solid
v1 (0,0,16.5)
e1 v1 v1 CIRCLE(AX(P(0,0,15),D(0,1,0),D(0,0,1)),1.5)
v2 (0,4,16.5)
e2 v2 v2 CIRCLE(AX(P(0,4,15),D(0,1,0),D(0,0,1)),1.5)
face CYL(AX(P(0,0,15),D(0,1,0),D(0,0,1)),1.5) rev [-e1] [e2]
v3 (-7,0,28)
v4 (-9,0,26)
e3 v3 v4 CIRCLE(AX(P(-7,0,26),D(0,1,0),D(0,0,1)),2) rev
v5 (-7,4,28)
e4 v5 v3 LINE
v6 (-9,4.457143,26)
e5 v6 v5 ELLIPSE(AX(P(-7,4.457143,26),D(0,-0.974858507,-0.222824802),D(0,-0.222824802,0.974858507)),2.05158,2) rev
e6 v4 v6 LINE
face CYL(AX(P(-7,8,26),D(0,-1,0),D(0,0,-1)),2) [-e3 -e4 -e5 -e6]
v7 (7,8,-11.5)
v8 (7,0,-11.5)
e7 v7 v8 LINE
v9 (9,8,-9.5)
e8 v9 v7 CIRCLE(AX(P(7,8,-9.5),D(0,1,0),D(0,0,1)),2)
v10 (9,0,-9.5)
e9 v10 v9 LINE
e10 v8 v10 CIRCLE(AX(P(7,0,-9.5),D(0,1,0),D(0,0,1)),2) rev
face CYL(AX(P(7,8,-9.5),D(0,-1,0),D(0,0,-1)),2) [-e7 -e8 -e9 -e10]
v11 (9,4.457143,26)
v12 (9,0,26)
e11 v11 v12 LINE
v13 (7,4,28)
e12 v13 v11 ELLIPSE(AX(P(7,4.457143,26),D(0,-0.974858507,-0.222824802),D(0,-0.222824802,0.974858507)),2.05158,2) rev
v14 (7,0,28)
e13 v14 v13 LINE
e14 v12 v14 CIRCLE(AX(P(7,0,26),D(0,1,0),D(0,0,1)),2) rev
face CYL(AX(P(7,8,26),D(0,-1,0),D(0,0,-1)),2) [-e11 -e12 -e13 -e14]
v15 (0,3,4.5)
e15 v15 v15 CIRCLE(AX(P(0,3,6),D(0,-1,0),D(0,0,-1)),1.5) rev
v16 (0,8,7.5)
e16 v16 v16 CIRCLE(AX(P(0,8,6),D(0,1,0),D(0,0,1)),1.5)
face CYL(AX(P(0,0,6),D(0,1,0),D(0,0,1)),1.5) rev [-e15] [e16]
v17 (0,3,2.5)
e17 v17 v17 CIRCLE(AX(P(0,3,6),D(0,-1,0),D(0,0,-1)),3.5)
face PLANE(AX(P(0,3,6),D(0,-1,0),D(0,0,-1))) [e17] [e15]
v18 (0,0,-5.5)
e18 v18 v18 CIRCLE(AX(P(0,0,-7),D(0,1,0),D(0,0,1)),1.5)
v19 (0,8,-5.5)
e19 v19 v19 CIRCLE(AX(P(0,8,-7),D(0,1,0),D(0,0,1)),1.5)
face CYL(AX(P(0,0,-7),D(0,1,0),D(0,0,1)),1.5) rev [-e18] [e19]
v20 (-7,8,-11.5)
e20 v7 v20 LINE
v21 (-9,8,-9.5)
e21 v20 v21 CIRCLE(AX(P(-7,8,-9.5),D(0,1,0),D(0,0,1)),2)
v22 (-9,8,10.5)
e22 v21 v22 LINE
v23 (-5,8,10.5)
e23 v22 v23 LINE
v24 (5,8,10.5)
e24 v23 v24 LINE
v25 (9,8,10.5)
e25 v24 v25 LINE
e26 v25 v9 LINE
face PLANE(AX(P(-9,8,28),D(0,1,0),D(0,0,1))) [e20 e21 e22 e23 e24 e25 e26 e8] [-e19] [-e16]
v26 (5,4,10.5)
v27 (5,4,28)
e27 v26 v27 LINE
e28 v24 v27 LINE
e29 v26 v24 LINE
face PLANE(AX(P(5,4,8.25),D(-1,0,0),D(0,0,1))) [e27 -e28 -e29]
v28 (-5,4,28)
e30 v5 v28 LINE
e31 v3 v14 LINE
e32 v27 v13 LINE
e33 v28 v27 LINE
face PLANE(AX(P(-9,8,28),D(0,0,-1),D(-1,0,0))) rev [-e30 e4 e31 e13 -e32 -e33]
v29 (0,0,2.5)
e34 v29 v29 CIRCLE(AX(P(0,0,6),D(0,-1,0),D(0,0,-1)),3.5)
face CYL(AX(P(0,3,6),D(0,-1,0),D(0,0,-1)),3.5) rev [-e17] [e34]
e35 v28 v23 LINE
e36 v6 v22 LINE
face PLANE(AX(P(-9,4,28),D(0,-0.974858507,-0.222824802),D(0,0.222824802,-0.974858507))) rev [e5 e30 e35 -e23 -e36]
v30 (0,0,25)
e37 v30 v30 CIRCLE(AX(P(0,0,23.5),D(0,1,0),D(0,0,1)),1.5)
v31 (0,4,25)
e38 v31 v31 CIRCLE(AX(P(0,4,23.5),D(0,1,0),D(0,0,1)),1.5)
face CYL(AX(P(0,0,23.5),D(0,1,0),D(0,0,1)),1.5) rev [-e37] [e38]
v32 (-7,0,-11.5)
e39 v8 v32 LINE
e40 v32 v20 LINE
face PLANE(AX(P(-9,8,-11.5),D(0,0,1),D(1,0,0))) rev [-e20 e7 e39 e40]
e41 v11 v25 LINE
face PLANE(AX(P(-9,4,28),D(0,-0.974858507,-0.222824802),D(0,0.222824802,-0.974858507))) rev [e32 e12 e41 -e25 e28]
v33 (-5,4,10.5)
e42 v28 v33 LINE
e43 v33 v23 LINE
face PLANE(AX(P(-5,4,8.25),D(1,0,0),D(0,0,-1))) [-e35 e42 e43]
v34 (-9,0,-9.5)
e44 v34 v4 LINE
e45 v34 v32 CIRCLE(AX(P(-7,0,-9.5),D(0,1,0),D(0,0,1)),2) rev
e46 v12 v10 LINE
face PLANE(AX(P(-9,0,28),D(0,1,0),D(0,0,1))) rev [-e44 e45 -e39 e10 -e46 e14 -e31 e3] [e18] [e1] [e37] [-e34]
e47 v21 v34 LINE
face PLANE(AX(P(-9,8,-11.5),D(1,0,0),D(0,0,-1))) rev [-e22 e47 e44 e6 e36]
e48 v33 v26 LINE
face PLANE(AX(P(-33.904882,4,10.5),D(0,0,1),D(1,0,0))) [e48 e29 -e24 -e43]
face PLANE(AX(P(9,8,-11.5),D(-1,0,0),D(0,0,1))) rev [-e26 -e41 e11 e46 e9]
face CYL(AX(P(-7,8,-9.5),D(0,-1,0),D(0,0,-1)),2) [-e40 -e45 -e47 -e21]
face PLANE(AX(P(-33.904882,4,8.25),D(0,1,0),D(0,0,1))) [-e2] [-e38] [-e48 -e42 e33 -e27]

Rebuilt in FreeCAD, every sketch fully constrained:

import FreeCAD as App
import Part
import Sketcher
from FreeCAD import Vector


def edges_at(feature, points):
    """Names of the edges that pass closest to the given points."""
    edges = feature.Shape.Edges
    near = lambda p: min(range(len(edges)), key=lambda i: edges[i].distToShape(Part.Vertex(*p))[0])
    return sorted({f"Edge{near(p) + 1}" for p in points})

doc = App.newDocument("Part")
params = doc.addObject("Spreadsheet::Sheet", "Params")
for row, (alias, value) in enumerate([
    ("sketch1_width", "18 mm"),
    ("sketch1_height", "39.5 mm"),
    ("pad1_length", "8 mm"),
    ("sketch2_width", "10 mm"),
    ("sketch2_height", "17.5 mm"),
    ("pocket1_length", "4 mm"),
    ("sketch3_width", "4 mm"),
    ("sketch3_height", "17.5 mm"),
    ("sketch4_diameter", "3 mm"),
    ("fillet_radius", "2 mm"),
    ("sketch5_diameter", "3 mm"),
    ("sketch6_diameter", "7 mm"),
    ("pocket5_length", "3 mm"),
    ("fillet2_radius", "2 mm"),
], start=1):
    params.set(f"A{row}", alias)
    params.set(f"B{row}", "=" + value)
    params.setAlias(f"B{row}", alias)

body = doc.addObject("PartDesign::Body", "Body")

# Sketch on XZ plane
sketch1 = body.newObject("Sketcher::SketchObject", "Sketch")
sketch1.AttachmentSupport = (doc.getObject("XZ_Plane"), [""])
sketch1.MapMode = "FlatFace"
sketch1.addGeometry(Part.LineSegment(Vector(-9, -12, 0), Vector(-9, 28, 0)), False)
sketch1.addGeometry(Part.LineSegment(Vector(-9, 28, 0), Vector(9, 28, 0)), False)
sketch1.addGeometry(Part.LineSegment(Vector(9, 28, 0), Vector(9, -12, 0)), False)
sketch1.addGeometry(Part.LineSegment(Vector(9, -12, 0), Vector(-9, -12, 0)), False)
sketch1.addConstraint(Sketcher.Constraint("Coincident", 0, 2, 1, 1))
sketch1.addConstraint(Sketcher.Constraint("Coincident", 1, 2, 2, 1))
sketch1.addConstraint(Sketcher.Constraint("Coincident", 2, 2, 3, 1))
sketch1.addConstraint(Sketcher.Constraint("Coincident", 3, 2, 0, 1))
sketch1.addConstraint(Sketcher.Constraint("Vertical", 0))
sketch1.addConstraint(Sketcher.Constraint("Horizontal", 1))
sketch1.addConstraint(Sketcher.Constraint("Vertical", 2))
sketch1.addConstraint(Sketcher.Constraint("Horizontal", 3))
sketch1.addConstraint(Sketcher.Constraint("DistanceX", 1, 1, 1, 2, 18.0))
sketch1.addConstraint(Sketcher.Constraint("DistanceY", 0, 1, 0, 2, 39.5))
sketch1.addConstraint(Sketcher.Constraint("DistanceX", 0, 2, -1, 1, 9.0))
sketch1.addConstraint(Sketcher.Constraint("DistanceY", -1, 1, 0, 2, 28.0))
sketch1.setExpression("Constraints[8]", "Params.sketch1_width")
sketch1.setExpression("Constraints[9]", "Params.sketch1_height")
pad1 = body.newObject("PartDesign::Pad", "Pad")
pad1.Profile = sketch1
pad1.setExpression("Length", "Params.pad1_length")
pad1.Reversed = True

# Sketch on XZ plane
sketch2 = body.newObject("Sketcher::SketchObject", "Sketch001")
sketch2.AttachmentSupport = (doc.getObject("XZ_Plane"), [""])
sketch2.MapMode = "FlatFace"
sketch2.AttachmentOffset = App.Placement(Vector(0, 0, -8), App.Rotation())
sketch2.addGeometry(Part.LineSegment(Vector(5, 28, 0), Vector(5, 10, 0)), False)
sketch2.addGeometry(Part.LineSegment(Vector(5, 10, 0), Vector(-5, 10, 0)), False)
sketch2.addGeometry(Part.LineSegment(Vector(-5, 10, 0), Vector(-5, 28, 0)), False)
sketch2.addGeometry(Part.LineSegment(Vector(-5, 28, 0), Vector(5, 28, 0)), False)
sketch2.addConstraint(Sketcher.Constraint("Coincident", 0, 2, 1, 1))
sketch2.addConstraint(Sketcher.Constraint("Coincident", 1, 2, 2, 1))
sketch2.addConstraint(Sketcher.Constraint("Coincident", 2, 2, 3, 1))
sketch2.addConstraint(Sketcher.Constraint("Coincident", 3, 2, 0, 1))
sketch2.addConstraint(Sketcher.Constraint("Vertical", 0))
sketch2.addConstraint(Sketcher.Constraint("Horizontal", 1))
sketch2.addConstraint(Sketcher.Constraint("Vertical", 2))
sketch2.addConstraint(Sketcher.Constraint("Horizontal", 3))
sketch2.addConstraint(Sketcher.Constraint("DistanceX", 1, 2, 1, 1, 10.0))
sketch2.addConstraint(Sketcher.Constraint("DistanceY", 0, 2, 0, 1, 17.5))
sketch2.addConstraint(Sketcher.Constraint("DistanceX", -1, 1, 0, 2, 5.0))
sketch2.addConstraint(Sketcher.Constraint("DistanceY", -1, 1, 2, 2, 28.0))
sketch2.setExpression("Constraints[8]", "Params.sketch2_width")
sketch2.setExpression("Constraints[9]", "Params.sketch2_height")
pocket1 = body.newObject("PartDesign::Pocket", "Pocket")
pocket1.Profile = sketch2
pocket1.setExpression("Length", "Params.pocket1_length")
pocket1.Reversed = True

# Sketch on YZ plane
sketch3 = body.newObject("Sketcher::SketchObject", "Sketch002")
sketch3.AttachmentSupport = (doc.getObject("YZ_Plane"), [""])
sketch3.MapMode = "FlatFace"
sketch3.AttachmentOffset = App.Placement(Vector(0, 0, 9), App.Rotation())
sketch3.addGeometry(Part.LineSegment(Vector(4, 28, 0), Vector(8, 10.5, 0)), False)
sketch3.addGeometry(Part.LineSegment(Vector(8, 10.5, 0), Vector(8, 28, 0)), False)
sketch3.addGeometry(Part.LineSegment(Vector(8, 28, 0), Vector(4, 28, 0)), False)
sketch3.addConstraint(Sketcher.Constraint("Coincident", 0, 2, 1, 1))
sketch3.addConstraint(Sketcher.Constraint("Coincident", 1, 2, 2, 1))
sketch3.addConstraint(Sketcher.Constraint("Coincident", 2, 2, 0, 1))
sketch3.addConstraint(Sketcher.Constraint("Vertical", 1))
sketch3.addConstraint(Sketcher.Constraint("Horizontal", 2))
sketch3.addConstraint(Sketcher.Constraint("DistanceX", 2, 2, 2, 1, 4.0))
sketch3.addConstraint(Sketcher.Constraint("DistanceY", 1, 1, 1, 2, 17.5))
sketch3.addConstraint(Sketcher.Constraint("DistanceX", -1, 1, 0, 2, 8.0))
sketch3.addConstraint(Sketcher.Constraint("DistanceY", -1, 1, 1, 2, 28.0))
sketch3.setExpression("Constraints[5]", "Params.sketch3_width")
sketch3.setExpression("Constraints[6]", "Params.sketch3_height")
pocket2 = body.newObject("PartDesign::Pocket", "Pocket001")
pocket2.Profile = sketch3
pocket2.Type = "ThroughAll"

# Sketch on XZ plane
sketch4 = body.newObject("Sketcher::SketchObject", "Sketch003")
sketch4.AttachmentSupport = (doc.getObject("XZ_Plane"), [""])
sketch4.MapMode = "FlatFace"
sketch4.AttachmentOffset = App.Placement(Vector(0, 0, -8), App.Rotation())
sketch4.addGeometry(Part.Circle(Vector(0, 6, 0), Vector(0, 0, 1), 1.5), False)
sketch4.addGeometry(Part.Circle(Vector(0, -7, 0), Vector(0, 0, 1), 1.5), False)
sketch4.addConstraint(Sketcher.Constraint("Equal", 0, 1))
sketch4.addConstraint(Sketcher.Constraint("PointOnObject", 0, 3, -2))
sketch4.addConstraint(Sketcher.Constraint("PointOnObject", 1, 3, -2))
sketch4.addConstraint(Sketcher.Constraint("Diameter", 0, 3.0))
sketch4.addConstraint(Sketcher.Constraint("DistanceY", -1, 1, 0, 3, 6.0))
sketch4.addConstraint(Sketcher.Constraint("DistanceY", 1, 3, -1, 1, 7.0))
sketch4.setExpression("Constraints[3]", "Params.sketch4_diameter")
pocket3 = body.newObject("PartDesign::Pocket", "Pocket002")
pocket3.Profile = sketch4
pocket3.Type = "ThroughAll"
pocket3.Reversed = True
doc.recompute()

fillet = body.newObject("PartDesign::Fillet", "Fillet")
fillet.Base = (pocket3, edges_at(pocket3, [(9, 2, 28), (-9, 2, 28)]))
fillet.setExpression("Radius", "Params.fillet_radius")

# Sketch on XZ plane
sketch5 = body.newObject("Sketcher::SketchObject", "Sketch004")
sketch5.AttachmentSupport = (doc.getObject("XZ_Plane"), [""])
sketch5.MapMode = "FlatFace"
sketch5.AttachmentOffset = App.Placement(Vector(0, 0, -4), App.Rotation())
sketch5.addGeometry(Part.Circle(Vector(0, 15, 0), Vector(0, 0, 1), 1.5), False)
sketch5.addGeometry(Part.Circle(Vector(0, 23.5, 0), Vector(0, 0, 1), 1.5), False)
sketch5.addConstraint(Sketcher.Constraint("Equal", 0, 1))
sketch5.addConstraint(Sketcher.Constraint("PointOnObject", 0, 3, -2))
sketch5.addConstraint(Sketcher.Constraint("PointOnObject", 1, 3, -2))
sketch5.addConstraint(Sketcher.Constraint("Diameter", 0, 3.0))
sketch5.addConstraint(Sketcher.Constraint("DistanceY", -1, 1, 0, 3, 15.0))
sketch5.addConstraint(Sketcher.Constraint("DistanceY", -1, 1, 1, 3, 23.5))
sketch5.setExpression("Constraints[3]", "Params.sketch5_diameter")
pocket4 = body.newObject("PartDesign::Pocket", "Pocket003")
pocket4.Profile = sketch5
pocket4.Type = "ThroughAll"
pocket4.Reversed = True

# Sketch on XZ plane
sketch6 = body.newObject("Sketcher::SketchObject", "Sketch005")
sketch6.AttachmentSupport = (doc.getObject("XZ_Plane"), [""])
sketch6.MapMode = "FlatFace"
sketch6.addGeometry(Part.Circle(Vector(0, 6, 0), Vector(0, 0, 1), 3.5), False)
sketch6.addConstraint(Sketcher.Constraint("PointOnObject", 0, 3, -2))
sketch6.addConstraint(Sketcher.Constraint("Diameter", 0, 7.0))
sketch6.addConstraint(Sketcher.Constraint("DistanceY", -1, 1, 0, 3, 6.0))
sketch6.setExpression("Constraints[1]", "Params.sketch6_diameter")
pocket5 = body.newObject("PartDesign::Pocket", "Pocket004")
pocket5.Profile = sketch6
pocket5.setExpression("Length", "Params.pocket5_length")
doc.recompute()

fillet2 = body.newObject("PartDesign::Fillet", "Fillet001")
fillet2.Base = (pocket5, edges_at(pocket5, [(-9, 4, -11.5), (9, 4, -11.5)]))
fillet2.setExpression("Radius", "Params.fillet2_radius")

doc.recompute()
